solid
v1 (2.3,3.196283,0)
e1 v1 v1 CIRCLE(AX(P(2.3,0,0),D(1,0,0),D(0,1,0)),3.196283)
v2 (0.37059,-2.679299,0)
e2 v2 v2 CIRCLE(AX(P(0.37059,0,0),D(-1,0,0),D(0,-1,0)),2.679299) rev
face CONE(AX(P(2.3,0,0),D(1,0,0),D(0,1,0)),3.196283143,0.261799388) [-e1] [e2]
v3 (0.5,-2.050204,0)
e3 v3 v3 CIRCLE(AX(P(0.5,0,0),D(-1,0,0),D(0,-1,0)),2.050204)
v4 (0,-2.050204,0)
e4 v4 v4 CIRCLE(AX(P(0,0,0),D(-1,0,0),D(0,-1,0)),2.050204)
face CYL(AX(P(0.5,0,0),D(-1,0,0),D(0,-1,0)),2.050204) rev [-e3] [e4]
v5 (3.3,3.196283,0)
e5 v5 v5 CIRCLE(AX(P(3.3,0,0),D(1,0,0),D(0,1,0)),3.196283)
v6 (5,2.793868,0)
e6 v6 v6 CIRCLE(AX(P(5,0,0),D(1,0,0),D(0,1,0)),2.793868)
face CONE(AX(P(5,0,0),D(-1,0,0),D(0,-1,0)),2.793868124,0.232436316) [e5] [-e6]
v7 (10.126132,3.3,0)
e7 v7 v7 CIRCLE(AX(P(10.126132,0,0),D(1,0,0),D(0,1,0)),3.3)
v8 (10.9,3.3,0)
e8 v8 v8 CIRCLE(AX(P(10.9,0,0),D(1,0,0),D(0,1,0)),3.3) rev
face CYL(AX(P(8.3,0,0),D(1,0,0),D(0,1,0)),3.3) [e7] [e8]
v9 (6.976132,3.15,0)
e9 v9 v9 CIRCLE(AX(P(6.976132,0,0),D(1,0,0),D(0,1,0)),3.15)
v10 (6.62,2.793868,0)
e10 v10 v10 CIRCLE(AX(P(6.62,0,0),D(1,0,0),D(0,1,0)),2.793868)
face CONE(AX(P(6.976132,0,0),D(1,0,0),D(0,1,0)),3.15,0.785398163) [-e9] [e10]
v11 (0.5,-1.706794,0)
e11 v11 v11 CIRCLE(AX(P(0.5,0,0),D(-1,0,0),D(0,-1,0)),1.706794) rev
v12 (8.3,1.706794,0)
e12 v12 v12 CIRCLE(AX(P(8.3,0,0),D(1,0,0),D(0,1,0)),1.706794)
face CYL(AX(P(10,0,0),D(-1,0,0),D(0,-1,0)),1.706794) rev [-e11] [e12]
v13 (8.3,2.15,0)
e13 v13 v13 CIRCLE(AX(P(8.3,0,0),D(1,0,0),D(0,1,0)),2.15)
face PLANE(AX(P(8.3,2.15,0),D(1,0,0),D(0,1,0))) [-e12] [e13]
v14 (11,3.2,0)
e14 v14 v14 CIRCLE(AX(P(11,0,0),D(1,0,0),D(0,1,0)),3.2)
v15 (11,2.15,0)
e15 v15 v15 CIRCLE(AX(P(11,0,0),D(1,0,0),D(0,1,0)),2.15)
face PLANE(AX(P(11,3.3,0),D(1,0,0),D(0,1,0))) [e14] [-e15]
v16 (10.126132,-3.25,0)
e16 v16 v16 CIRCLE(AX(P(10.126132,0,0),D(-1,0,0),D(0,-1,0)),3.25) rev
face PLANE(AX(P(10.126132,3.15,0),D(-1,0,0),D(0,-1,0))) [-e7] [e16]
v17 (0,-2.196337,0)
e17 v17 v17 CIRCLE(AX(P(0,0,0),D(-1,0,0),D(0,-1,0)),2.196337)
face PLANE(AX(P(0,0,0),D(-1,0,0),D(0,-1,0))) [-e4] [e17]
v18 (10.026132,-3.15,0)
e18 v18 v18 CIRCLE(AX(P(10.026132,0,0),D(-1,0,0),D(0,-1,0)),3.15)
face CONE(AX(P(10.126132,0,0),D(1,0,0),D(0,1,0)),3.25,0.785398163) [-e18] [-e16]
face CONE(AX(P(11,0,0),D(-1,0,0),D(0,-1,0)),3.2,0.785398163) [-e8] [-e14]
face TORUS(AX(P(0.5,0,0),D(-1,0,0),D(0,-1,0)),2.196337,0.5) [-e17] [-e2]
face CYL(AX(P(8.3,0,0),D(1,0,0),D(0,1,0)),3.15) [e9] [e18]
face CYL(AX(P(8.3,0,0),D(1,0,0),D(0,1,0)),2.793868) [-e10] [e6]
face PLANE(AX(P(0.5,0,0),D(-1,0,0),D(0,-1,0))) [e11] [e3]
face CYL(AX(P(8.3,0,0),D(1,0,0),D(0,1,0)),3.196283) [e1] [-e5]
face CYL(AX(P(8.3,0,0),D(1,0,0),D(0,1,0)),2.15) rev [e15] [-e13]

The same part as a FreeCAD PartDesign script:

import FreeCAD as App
import Part
import Sketcher
from FreeCAD import Vector
Q = App.Units.Quantity


def edges_at(feature, points):
    """Names of the edges that pass closest to the given points."""
    edges = feature.Shape.Edges
    near = lambda p: min(range(len(edges)), key=lambda i: edges[i].distToShape(Part.Vertex(*p))[0])
    return sorted({f"Edge{near(p) + 1}" for p in points})

doc = App.newDocument("Part")
body = doc.addObject("PartDesign::Body", "Body")

sketch1 = doc.addObject("Sketcher::SketchObject", "Sketch")
body.addObject(sketch1)
sketch1.AttachmentSupport = (doc.XY_Plane, [""])
sketch1.MapMode = "FlatFace"
sketch1.addGeometry(Part.LineSegment(Vector(0, 2.58, 0), Vector(0, 0, 0)), False)
sketch1.addGeometry(Part.LineSegment(Vector(0, 0, 0), Vector(8.3, 0, 0)), False)
sketch1.addGeometry(Part.LineSegment(Vector(8.3, 0, 0), Vector(8.3, 2.15, 0)), False)
sketch1.addGeometry(Part.LineSegment(Vector(8.3, 2.15, 0), Vector(11, 2.15, 0)), False)
sketch1.addGeometry(Part.LineSegment(Vector(11, 2.15, 0), Vector(11, 3.3, 0)), False)
sketch1.addGeometry(Part.LineSegment(Vector(11, 3.3, 0), Vector(10.13, 3.3, 0)), False)
sketch1.addGeometry(Part.LineSegment(Vector(10.13, 3.3, 0), Vector(10.13, 3.15, 0)), False)
sketch1.addGeometry(Part.LineSegment(Vector(10.13, 3.15, 0), Vector(6.98, 3.15, 0)), False)
sketch1.addGeometry(Part.LineSegment(Vector(6.98, 3.15, 0), Vector(6.62, 2.79, 0)), False)
sketch1.addGeometry(Part.LineSegment(Vector(6.62, 2.79, 0), Vector(5, 2.79, 0)), False)
sketch1.addGeometry(Part.LineSegment(Vector(5, 2.79, 0), Vector(3.3, 3.2, 0)), False)
sketch1.addGeometry(Part.LineSegment(Vector(3.3, 3.2, 0), Vector(2.3, 3.2, 0)), False)
sketch1.addGeometry(Part.LineSegment(Vector(2.3, 3.2, 0), Vector(0, 2.58, 0)), False)
sketch1.addConstraint(Sketcher.Constraint("Coincident", 0, 2, 1, 1))
sketch1.addConstraint(Sketcher.Constraint("Coincident", 1, 2, 2, 1))
sketch1.addConstraint(Sketcher.Constraint("Coincident", 2, 2, 3, 1))
sketch1.addConstraint(Sketcher.Constraint("Coincident", 3, 2, 4, 1))
sketch1.addConstraint(Sketcher.Constraint("Coincident", 4, 2, 5, 1))
sketch1.addConstraint(Sketcher.Constraint("Coincident", 5, 2, 6, 1))
sketch1.addConstraint(Sketcher.Constraint("Coincident", 6, 2, 7, 1))
sketch1.addConstraint(Sketcher.Constraint("Coincident", 7, 2, 8, 1))
sketch1.addConstraint(Sketcher.Constraint("Coincident", 8, 2, 9, 1))
sketch1.addConstraint(Sketcher.Constraint("Coincident", 9, 2, 10, 1))
sketch1.addConstraint(Sketcher.Constraint("Coincident", 10, 2, 11, 1))
sketch1.addConstraint(Sketcher.Constraint("Coincident", 11, 2, 12, 1))
sketch1.addConstraint(Sketcher.Constraint("Coincident", 12, 2, 0, 1))
sketch1.addConstraint(Sketcher.Constraint("Vertical", 0))
sketch1.addConstraint(Sketcher.Constraint("Horizontal", 1))
sketch1.addConstraint(Sketcher.Constraint("Vertical", 2))
sketch1.addConstraint(Sketcher.Constraint("Horizontal", 3))
sketch1.addConstraint(Sketcher.Constraint("Vertical", 4))
sketch1.addConstraint(Sketcher.Constraint("Horizontal", 5))
sketch1.addConstraint(Sketcher.Constraint("Vertical", 6))
sketch1.addConstraint(Sketcher.Constraint("Horizontal", 7))
sketch1.addConstraint(Sketcher.Constraint("Horizontal", 9))
sketch1.addConstraint(Sketcher.Constraint("Horizontal", 11))
sketch1.addConstraint(Sketcher.Constraint("Coincident", 0, 2, -1, 1))
sketch1.addConstraint(Sketcher.Constraint("DistanceX", 11, 2, 11, 1, Q("1 mm")))
sketch1.addConstraint(Sketcher.Constraint("Angle", 8, Q("-135 deg")))
sketch1.addConstraint(Sketcher.Constraint("Angle", 12, Q("-165 deg")))
sketch1.addConstraint(Sketcher.Constraint("DistanceX", 1, 1, 1, 2, Q("8.3 mm")))
sketch1.addConstraint(Sketcher.Constraint("DistanceX", 3, 1, 3, 2, Q("2.7 mm")))
sketch1.addConstraint(Sketcher.Constraint("DistanceX", -1, 1, 9, 2, Q("5 mm")))
sketch1.addConstraint(Sketcher.Constraint("DistanceY", 3, 2, 6, 2, Q("1 mm")))
sketch1.addConstraint(Sketcher.Constraint("DistanceX", 10, 2, 2, 2, Q("5 mm")))
sketch1.addConstraint(Sketcher.Constraint("DistanceX", 7, 2, 7, 1, Q("3.15 mm")))
sketch1.addConstraint(Sketcher.Constraint("DistanceX", 9, 2, 9, 1, Q("1.62 mm")))
sketch1.addConstraint(Sketcher.Constraint("DistanceY", 0, 2, 0, 1, Q("2.58 mm")))
sketch1.addConstraint(Sketcher.Constraint("DistanceY", 2, 1, 2, 2, Q("2.15 mm")))
sketch1.addConstraint(Sketcher.Constraint("DistanceY", 4, 1, 4, 2, Q("1.15 mm")))
sketch1.addConstraint(Sketcher.Constraint("DistanceX", 5, 2, 5, 1, Q("0.873868 mm")))
revolution = doc.addObject("PartDesign::Revolution", "Revolution")
body.addObject(revolution)
revolution.Profile = sketch1
revolution.ReferenceAxis = (sketch1, ["H_Axis"])
revolution.Angle = 360

sketch2 = doc.addObject("Sketcher::SketchObject", "Sketch001")
body.addObject(sketch2)
sketch2.AttachmentSupport = (doc.YZ_Plane, [""])
sketch2.MapMode = "FlatFace"
sketch2.addGeometry(Part.Circle(Vector(0, 0, 0), Vector(0, 0, 1), 1.7), False)
sketch2.addConstraint(Sketcher.Constraint("Coincident", 0, 3, -1, 1))
sketch2.addConstraint(Sketcher.Constraint("Diameter", 0, Q("3.413589 mm")))
pocket1 = doc.addObject("PartDesign::Pocket", "Pocket")
body.addObject(pocket1)
pocket1.Profile = sketch2
pocket1.Length = 10
pocket1.Reversed = True

sketch3 = doc.addObject("Sketcher::SketchObject", "Sketch002")
body.addObject(sketch3)
sketch3.AttachmentSupport = (doc.YZ_Plane, [""])
sketch3.MapMode = "FlatFace"
sketch3.addGeometry(Part.Circle(Vector(0, 0, 0), Vector(0, 0, 1), 2.1), False)
sketch3.addConstraint(Sketcher.Constraint("Coincident", 0, 3, -1, 1))
sketch3.addConstraint(Sketcher.Constraint("Diameter", 0, Q("4.100408 mm")))
pocket2 = doc.addObject("PartDesign::Pocket", "Pocket001")
body.addObject(pocket2)
pocket2.Profile = sketch3
pocket2.Length = 0.5
pocket2.Reversed = True
doc.recompute()

fillet = doc.addObject("PartDesign::Fillet", "Fillet")
body.addObject(fillet)
fillet.Base = (pocket2, edges_at(pocket2, [(0, -2.58, 0)]))
fillet.Radius = 0.5
doc.recompute()

chamfer = doc.addObject("PartDesign::Chamfer", "Chamfer")
body.addObject(chamfer)
chamfer.Base = (fillet, edges_at(fillet, [(11, -3.3, 0), (10.126, -3.15, 0)]))
chamfer.Size = 0.1

doc.recompute()
